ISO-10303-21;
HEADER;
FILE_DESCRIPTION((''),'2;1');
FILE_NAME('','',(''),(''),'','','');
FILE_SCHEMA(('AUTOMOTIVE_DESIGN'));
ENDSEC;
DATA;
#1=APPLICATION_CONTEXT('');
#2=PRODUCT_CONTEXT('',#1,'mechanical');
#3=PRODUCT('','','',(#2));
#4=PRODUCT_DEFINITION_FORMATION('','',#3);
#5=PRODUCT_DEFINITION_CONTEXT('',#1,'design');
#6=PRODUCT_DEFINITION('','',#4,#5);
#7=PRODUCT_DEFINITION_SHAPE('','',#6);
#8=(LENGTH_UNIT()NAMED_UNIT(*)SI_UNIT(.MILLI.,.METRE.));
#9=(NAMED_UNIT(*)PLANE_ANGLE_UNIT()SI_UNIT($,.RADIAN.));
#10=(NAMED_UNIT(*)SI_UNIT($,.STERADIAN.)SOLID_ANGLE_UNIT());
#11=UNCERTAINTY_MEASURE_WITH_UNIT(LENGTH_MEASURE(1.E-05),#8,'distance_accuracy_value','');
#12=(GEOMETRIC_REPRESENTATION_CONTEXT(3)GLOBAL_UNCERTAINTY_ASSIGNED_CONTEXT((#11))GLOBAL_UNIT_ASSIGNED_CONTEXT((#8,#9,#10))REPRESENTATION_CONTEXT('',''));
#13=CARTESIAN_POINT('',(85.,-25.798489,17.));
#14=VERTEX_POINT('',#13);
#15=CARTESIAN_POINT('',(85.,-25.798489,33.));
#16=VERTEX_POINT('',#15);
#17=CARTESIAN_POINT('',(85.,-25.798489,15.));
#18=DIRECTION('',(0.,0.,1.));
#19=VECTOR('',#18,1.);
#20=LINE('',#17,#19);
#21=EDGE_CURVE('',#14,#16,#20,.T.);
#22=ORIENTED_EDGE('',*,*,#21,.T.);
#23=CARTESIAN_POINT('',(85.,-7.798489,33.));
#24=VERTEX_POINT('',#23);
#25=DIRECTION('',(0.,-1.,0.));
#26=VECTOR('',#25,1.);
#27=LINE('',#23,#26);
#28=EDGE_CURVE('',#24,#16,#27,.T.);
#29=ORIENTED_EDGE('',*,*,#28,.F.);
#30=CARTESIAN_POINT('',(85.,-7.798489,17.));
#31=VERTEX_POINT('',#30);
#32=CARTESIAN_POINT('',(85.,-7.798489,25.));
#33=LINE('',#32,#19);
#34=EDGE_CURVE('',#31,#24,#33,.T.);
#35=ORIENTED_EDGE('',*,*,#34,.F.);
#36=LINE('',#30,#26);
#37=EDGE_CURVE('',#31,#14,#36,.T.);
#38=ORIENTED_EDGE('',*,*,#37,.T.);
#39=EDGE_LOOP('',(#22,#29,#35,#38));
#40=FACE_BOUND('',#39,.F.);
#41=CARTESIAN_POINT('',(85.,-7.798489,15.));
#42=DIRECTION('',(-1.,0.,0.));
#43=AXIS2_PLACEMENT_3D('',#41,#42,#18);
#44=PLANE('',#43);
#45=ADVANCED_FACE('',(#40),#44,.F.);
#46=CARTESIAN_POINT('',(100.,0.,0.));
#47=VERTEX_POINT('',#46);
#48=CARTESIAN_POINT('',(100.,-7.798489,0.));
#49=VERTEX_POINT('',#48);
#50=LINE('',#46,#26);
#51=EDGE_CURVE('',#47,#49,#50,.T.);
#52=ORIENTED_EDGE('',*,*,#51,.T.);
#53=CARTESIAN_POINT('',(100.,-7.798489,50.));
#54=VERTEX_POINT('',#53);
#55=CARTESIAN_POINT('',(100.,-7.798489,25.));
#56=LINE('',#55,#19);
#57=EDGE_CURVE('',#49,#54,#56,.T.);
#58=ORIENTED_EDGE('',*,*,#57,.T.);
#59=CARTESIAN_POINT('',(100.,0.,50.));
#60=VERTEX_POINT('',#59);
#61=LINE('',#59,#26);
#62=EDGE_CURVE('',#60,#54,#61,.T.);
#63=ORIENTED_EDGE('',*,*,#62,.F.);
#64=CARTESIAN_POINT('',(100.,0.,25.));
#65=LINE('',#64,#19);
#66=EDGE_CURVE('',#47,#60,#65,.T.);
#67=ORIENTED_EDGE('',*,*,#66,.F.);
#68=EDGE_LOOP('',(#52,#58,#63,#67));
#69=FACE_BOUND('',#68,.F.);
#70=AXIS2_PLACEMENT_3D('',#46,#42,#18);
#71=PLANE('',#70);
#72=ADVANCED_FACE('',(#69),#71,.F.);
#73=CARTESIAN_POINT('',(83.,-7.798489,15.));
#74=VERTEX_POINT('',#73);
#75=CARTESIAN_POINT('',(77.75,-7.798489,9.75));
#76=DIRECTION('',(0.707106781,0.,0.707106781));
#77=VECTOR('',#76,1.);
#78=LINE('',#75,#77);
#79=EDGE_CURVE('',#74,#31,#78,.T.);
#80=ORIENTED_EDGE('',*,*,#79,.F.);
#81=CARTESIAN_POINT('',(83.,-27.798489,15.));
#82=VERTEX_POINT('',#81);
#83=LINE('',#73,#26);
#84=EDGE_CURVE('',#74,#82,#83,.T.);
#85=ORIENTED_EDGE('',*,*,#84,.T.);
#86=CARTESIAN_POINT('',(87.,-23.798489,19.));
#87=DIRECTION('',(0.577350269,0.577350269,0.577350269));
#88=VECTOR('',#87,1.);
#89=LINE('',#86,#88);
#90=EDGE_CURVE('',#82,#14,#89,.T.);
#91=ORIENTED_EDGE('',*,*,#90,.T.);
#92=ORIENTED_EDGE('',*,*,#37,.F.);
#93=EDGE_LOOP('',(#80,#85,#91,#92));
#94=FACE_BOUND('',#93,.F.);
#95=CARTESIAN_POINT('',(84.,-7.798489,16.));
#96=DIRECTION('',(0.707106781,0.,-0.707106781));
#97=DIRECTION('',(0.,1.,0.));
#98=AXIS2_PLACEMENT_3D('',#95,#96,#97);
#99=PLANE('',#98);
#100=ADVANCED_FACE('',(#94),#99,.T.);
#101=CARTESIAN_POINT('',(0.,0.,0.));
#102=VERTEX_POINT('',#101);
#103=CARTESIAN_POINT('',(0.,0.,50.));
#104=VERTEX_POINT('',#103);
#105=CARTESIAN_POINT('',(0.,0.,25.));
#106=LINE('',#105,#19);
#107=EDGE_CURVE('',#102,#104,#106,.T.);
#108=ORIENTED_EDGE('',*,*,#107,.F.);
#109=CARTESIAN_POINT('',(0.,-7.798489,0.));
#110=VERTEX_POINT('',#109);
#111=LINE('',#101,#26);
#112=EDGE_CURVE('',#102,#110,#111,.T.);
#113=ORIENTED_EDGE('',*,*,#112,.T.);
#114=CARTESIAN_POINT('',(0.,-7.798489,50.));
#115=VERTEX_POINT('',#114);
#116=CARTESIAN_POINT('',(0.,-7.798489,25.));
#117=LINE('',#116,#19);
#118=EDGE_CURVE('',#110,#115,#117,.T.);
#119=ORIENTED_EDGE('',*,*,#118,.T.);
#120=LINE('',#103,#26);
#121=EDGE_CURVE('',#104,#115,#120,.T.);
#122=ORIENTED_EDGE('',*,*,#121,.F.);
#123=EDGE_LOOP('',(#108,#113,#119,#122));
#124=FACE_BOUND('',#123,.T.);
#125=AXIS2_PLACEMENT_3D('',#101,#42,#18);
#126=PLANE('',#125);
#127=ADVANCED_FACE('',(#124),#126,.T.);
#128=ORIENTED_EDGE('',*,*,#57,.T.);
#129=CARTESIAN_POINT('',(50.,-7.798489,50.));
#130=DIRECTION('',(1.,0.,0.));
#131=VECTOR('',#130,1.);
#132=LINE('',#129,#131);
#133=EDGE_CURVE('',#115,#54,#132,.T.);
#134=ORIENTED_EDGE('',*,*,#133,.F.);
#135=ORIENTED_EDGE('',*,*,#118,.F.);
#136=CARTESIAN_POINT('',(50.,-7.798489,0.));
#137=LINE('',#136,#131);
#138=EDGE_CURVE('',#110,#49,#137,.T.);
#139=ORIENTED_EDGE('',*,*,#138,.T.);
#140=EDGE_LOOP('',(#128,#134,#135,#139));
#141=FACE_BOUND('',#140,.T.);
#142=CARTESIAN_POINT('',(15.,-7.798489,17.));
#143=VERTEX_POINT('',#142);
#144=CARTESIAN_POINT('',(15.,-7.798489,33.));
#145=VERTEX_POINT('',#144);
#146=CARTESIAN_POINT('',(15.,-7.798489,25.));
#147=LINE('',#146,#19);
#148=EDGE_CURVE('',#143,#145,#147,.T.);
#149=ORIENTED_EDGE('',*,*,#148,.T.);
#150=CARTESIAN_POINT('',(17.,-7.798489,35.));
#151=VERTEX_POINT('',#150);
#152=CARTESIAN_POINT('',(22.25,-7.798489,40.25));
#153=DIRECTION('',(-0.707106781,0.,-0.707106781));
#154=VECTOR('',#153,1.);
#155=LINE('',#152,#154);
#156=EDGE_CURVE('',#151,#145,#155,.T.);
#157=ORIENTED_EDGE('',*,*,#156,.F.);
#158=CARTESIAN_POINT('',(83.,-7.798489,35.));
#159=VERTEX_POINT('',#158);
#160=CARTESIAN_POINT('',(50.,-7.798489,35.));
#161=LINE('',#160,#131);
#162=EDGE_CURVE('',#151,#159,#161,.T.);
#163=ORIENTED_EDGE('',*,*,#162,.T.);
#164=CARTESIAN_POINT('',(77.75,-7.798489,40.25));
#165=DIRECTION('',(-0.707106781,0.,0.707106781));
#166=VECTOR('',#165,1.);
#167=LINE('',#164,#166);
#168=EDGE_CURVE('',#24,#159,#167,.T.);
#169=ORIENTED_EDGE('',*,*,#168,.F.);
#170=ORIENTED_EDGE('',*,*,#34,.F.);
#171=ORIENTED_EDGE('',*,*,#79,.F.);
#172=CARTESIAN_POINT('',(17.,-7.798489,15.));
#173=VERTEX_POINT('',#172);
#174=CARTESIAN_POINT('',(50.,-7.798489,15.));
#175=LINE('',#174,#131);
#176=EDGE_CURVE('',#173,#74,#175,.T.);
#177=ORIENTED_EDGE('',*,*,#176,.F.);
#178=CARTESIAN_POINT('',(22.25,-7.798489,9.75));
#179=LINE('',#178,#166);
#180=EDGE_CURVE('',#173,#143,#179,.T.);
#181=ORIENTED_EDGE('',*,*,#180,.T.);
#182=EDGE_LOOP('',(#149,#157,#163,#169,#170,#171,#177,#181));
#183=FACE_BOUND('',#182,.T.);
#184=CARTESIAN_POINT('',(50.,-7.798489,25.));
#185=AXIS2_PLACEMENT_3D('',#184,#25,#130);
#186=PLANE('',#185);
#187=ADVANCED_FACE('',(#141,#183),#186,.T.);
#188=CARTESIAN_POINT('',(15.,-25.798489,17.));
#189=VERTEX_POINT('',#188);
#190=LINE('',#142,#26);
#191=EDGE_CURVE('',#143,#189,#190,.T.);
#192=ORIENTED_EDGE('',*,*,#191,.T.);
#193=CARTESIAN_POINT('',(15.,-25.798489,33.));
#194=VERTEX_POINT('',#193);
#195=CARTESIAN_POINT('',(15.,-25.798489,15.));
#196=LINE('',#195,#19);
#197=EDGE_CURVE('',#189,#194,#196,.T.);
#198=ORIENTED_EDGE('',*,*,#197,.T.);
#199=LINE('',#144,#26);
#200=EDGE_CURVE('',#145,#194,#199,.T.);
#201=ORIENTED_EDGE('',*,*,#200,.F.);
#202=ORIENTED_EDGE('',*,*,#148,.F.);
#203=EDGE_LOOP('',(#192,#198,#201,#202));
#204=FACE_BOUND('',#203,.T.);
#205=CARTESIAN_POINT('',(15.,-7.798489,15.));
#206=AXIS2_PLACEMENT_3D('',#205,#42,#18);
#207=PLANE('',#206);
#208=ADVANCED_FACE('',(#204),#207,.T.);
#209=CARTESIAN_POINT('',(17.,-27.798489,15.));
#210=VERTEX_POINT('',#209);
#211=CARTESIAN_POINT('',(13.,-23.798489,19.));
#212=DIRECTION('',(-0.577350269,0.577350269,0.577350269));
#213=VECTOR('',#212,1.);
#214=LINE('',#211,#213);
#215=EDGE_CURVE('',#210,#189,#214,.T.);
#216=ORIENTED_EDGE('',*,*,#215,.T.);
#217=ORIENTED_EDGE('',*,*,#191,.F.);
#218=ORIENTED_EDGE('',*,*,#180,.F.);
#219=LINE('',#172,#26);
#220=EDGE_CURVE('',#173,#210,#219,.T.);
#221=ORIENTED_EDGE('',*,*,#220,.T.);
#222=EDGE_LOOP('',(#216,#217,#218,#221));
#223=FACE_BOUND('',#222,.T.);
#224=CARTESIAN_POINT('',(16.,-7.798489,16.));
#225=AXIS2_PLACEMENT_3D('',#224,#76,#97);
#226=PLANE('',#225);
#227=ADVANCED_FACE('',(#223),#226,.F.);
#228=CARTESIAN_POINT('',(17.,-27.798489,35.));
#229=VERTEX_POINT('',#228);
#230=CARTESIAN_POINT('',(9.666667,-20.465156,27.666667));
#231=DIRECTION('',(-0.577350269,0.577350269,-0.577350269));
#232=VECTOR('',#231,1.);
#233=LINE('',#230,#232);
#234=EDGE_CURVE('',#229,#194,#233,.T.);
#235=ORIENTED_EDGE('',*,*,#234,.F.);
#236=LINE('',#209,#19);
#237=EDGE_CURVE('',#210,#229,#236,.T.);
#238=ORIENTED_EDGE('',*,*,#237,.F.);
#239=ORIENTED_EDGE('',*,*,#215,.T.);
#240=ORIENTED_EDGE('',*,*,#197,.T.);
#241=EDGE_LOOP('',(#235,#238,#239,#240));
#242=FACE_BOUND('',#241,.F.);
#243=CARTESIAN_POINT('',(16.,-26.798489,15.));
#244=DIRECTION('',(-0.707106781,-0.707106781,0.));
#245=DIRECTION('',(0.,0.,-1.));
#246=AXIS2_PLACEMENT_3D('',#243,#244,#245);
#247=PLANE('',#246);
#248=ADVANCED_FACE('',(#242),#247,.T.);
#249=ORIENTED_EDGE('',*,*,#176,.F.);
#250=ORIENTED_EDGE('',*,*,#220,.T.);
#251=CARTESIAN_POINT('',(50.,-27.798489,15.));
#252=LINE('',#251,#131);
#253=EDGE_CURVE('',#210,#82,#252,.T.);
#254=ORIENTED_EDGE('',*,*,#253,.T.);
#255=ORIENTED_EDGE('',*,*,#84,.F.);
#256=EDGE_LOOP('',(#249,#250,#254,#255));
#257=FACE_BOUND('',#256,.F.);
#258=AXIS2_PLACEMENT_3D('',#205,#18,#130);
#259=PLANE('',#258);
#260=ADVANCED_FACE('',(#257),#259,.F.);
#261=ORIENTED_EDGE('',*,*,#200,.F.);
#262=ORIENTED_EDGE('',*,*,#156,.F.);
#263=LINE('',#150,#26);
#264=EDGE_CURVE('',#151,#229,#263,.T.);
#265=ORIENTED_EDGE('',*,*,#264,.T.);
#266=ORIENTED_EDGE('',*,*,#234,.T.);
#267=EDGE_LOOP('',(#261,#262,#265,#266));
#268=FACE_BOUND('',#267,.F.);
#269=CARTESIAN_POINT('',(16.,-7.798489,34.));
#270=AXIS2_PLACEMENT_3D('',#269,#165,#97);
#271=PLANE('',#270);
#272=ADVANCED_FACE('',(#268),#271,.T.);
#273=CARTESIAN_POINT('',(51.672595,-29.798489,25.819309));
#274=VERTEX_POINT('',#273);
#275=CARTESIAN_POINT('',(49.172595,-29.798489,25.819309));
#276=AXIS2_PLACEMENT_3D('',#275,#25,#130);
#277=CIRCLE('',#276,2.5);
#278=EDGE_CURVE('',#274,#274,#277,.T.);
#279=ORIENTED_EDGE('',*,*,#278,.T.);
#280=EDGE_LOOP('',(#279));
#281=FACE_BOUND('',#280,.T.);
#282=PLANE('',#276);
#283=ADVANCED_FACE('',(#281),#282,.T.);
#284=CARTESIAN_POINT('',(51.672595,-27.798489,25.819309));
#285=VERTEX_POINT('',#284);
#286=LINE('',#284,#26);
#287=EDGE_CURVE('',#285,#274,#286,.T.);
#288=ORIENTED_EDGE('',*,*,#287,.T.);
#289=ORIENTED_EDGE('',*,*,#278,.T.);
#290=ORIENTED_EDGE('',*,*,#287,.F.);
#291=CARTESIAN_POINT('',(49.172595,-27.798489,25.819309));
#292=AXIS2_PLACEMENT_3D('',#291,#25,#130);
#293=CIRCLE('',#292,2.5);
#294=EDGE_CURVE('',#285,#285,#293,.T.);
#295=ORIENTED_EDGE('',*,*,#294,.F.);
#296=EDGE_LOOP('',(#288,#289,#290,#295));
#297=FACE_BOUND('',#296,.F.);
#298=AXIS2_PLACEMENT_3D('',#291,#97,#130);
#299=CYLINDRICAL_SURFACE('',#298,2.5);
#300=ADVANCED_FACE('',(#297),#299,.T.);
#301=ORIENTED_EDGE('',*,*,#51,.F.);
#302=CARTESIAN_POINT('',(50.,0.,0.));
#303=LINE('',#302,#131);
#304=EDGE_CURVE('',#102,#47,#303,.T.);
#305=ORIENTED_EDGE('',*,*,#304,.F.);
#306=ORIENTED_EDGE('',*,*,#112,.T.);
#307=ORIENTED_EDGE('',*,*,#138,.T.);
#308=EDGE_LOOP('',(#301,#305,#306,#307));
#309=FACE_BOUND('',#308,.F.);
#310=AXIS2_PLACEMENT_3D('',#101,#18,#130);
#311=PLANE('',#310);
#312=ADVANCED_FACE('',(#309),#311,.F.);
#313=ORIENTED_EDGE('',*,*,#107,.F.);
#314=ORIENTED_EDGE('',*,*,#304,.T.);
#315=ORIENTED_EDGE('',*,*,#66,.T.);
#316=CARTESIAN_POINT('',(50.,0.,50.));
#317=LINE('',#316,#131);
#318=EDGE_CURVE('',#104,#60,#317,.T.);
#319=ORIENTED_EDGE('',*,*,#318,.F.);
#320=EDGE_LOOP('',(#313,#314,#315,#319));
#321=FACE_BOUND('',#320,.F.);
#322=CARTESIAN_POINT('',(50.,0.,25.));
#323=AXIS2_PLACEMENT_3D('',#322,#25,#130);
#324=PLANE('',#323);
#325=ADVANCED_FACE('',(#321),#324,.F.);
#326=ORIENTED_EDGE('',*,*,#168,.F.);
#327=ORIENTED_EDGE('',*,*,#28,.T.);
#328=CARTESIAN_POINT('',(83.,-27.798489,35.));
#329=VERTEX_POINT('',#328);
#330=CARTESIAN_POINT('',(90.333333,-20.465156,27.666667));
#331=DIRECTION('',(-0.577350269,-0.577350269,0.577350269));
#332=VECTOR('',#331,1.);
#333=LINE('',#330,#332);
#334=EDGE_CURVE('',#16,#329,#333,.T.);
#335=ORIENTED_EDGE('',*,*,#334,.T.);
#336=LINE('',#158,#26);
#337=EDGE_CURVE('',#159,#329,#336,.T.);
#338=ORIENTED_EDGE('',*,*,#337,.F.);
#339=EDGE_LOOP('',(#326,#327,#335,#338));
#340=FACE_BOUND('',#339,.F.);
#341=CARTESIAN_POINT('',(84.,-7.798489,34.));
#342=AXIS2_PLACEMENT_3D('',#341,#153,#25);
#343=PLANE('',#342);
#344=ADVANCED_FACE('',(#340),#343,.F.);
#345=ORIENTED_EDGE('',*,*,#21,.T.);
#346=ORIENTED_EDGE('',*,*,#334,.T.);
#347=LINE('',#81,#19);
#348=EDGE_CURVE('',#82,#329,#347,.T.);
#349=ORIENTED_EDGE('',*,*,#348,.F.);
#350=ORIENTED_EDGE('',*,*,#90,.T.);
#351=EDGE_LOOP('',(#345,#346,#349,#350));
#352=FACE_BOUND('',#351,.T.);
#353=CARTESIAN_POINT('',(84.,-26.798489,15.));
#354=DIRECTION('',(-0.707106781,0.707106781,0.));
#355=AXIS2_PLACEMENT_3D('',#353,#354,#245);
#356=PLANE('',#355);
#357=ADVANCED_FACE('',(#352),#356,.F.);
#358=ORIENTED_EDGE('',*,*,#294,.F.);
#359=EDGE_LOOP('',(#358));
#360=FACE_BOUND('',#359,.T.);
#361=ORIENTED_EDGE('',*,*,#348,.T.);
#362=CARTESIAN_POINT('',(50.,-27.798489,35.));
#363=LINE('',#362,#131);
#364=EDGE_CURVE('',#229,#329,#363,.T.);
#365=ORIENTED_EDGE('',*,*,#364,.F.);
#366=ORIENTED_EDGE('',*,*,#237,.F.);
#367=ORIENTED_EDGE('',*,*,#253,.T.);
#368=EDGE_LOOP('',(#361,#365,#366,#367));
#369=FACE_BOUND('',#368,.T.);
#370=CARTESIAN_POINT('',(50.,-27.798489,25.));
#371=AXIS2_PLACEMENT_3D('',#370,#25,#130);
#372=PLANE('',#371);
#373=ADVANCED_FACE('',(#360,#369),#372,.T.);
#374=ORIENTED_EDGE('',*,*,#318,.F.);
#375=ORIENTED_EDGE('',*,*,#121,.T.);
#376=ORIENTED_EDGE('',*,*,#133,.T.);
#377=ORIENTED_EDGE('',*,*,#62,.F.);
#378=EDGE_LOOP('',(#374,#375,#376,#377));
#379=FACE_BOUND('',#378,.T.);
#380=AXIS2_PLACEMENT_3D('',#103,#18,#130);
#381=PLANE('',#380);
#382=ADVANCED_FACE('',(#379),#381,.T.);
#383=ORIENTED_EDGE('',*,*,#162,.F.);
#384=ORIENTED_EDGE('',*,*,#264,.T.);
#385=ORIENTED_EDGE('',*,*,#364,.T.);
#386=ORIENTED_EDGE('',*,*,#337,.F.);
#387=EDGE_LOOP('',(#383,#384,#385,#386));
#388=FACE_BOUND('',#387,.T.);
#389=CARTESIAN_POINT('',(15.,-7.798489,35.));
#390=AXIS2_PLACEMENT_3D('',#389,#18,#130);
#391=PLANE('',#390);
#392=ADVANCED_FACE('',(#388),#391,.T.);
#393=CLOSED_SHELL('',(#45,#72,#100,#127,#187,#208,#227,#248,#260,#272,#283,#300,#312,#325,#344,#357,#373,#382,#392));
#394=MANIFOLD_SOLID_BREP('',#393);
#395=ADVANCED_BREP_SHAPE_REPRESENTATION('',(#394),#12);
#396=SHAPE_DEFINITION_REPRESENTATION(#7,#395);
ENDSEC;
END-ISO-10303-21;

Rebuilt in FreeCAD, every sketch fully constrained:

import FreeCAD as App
import Part
import Sketcher

V = App.Vector
Q = App.Units.Quantity


def edges_at(feature, points):
    """Names of the edges that pass closest to the given points."""
    edges = feature.Shape.Edges
    near = lambda p: min(range(len(edges)), key=lambda i: edges[i].distToShape(Part.Vertex(*p))[0])
    return sorted({f"Edge{near(p) + 1}" for p in points})


def add_polygon(sketch, points):
    """Adds a closed chain of lines whose ends are joined by coincident constraints."""
    first, n = sketch.GeometryCount, len(points)
    for a, b in zip(points, points[1:] + points[:1]):
        sketch.addGeometry(Part.LineSegment(App.Vector(*a, 0), App.Vector(*b, 0)), False)
    for i in range(n):
        sketch.addConstraint(Sketcher.Constraint("Coincident", first + i, 2, first + (i + 1) % n, 1))

doc = App.newDocument("Part")
body = doc.addObject("PartDesign::Body", "Body")

sketch1 = body.newObject("Sketcher::SketchObject", "Sketch")
sketch1.AttachmentSupport = (doc.getObject("XZ_Plane"), [""])
sketch1.MapMode = "FlatFace"
add_polygon(sketch1, [(0, 50), (0, 0), (100, 0), (100, 50)])
sketch1.addConstraint([
    Sketcher.Constraint("Vertical", 0),
    Sketcher.Constraint("Horizontal", 1),
    Sketcher.Constraint("Vertical", 2),
    Sketcher.Constraint("Horizontal", 3),
    Sketcher.Constraint("Coincident", 0, 2, -1, 1),
    Sketcher.Constraint("DistanceX", 1, 1, 1, 2, Q("100 mm")),
    Sketcher.Constraint("DistanceY", 0, 2, 0, 1, Q("50 mm")),
])
pad1 = body.newObject("PartDesign::Pad", "Pad")
pad1.Profile = sketch1
pad1.Length = 7.798489

sketch2 = body.newObject("Sketcher::SketchObject", "Sketch001")
sketch2.AttachmentSupport = (doc.getObject("XZ_Plane"), [""])
sketch2.MapMode = "FlatFace"
sketch2.AttachmentOffset = App.Placement(V(0, 0, 7.798489), App.Rotation())
add_polygon(sketch2, [(15, 35), (15, 15), (85, 15), (85, 35)])
sketch2.addConstraint([
    Sketcher.Constraint("Vertical", 0),
    Sketcher.Constraint("Horizontal", 1),
    Sketcher.Constraint("Vertical", 2),
    Sketcher.Constraint("Horizontal", 3),
    Sketcher.Constraint("DistanceX", 1, 1, 1, 2, Q("70 mm")),
    Sketcher.Constraint("DistanceY", 0, 2, 0, 1, Q("20 mm")),
    Sketcher.Constraint("DistanceX", -1, 1, 0, 2, Q("15 mm")),
    Sketcher.Constraint("DistanceY", -1, 1, 0, 2, Q("15 mm")),
])
pad2 = body.newObject("PartDesign::Pad", "Pad001")
pad2.Profile = sketch2
pad2.Length = 20
doc.recompute()

chamfer = body.newObject("PartDesign::Chamfer", "Chamfer")
chamfer.Base = (pad2, edges_at(pad2, [
    (85, -17.798, 15),
    (85, -17.798, 35),
    (15, -17.798, 15),
    (15, -17.798, 35),
    (15, -27.798, 25),
    (85, -27.798, 25),
]))
chamfer.Size = 2

sketch3 = body.newObject("Sketcher::SketchObject", "Sketch002")
sketch3.AttachmentSupport = (doc.getObject("XZ_Plane"), [""])
sketch3.MapMode = "FlatFace"
sketch3.AttachmentOffset = App.Placement(V(0, 0, 27.798489), App.Rotation())
sketch3.addGeometry(Part.Circle(V(49.172595, 25.819309, 0), V(0, 0, 1), 2.5), False)
sketch3.addConstraint([
    Sketcher.Constraint("Diameter", 0, Q("5 mm")),
    Sketcher.Constraint("DistanceY", -1, 1, 0, 3, Q("25.819309 mm")),
    Sketcher.Constraint("DistanceX", -1, 1, 0, 3, Q("49.172595 mm")),
])
pad3 = body.newObject("PartDesign::Pad", "Pad002")
pad3.Profile = sketch3
pad3.Length = 2

doc.recompute()
